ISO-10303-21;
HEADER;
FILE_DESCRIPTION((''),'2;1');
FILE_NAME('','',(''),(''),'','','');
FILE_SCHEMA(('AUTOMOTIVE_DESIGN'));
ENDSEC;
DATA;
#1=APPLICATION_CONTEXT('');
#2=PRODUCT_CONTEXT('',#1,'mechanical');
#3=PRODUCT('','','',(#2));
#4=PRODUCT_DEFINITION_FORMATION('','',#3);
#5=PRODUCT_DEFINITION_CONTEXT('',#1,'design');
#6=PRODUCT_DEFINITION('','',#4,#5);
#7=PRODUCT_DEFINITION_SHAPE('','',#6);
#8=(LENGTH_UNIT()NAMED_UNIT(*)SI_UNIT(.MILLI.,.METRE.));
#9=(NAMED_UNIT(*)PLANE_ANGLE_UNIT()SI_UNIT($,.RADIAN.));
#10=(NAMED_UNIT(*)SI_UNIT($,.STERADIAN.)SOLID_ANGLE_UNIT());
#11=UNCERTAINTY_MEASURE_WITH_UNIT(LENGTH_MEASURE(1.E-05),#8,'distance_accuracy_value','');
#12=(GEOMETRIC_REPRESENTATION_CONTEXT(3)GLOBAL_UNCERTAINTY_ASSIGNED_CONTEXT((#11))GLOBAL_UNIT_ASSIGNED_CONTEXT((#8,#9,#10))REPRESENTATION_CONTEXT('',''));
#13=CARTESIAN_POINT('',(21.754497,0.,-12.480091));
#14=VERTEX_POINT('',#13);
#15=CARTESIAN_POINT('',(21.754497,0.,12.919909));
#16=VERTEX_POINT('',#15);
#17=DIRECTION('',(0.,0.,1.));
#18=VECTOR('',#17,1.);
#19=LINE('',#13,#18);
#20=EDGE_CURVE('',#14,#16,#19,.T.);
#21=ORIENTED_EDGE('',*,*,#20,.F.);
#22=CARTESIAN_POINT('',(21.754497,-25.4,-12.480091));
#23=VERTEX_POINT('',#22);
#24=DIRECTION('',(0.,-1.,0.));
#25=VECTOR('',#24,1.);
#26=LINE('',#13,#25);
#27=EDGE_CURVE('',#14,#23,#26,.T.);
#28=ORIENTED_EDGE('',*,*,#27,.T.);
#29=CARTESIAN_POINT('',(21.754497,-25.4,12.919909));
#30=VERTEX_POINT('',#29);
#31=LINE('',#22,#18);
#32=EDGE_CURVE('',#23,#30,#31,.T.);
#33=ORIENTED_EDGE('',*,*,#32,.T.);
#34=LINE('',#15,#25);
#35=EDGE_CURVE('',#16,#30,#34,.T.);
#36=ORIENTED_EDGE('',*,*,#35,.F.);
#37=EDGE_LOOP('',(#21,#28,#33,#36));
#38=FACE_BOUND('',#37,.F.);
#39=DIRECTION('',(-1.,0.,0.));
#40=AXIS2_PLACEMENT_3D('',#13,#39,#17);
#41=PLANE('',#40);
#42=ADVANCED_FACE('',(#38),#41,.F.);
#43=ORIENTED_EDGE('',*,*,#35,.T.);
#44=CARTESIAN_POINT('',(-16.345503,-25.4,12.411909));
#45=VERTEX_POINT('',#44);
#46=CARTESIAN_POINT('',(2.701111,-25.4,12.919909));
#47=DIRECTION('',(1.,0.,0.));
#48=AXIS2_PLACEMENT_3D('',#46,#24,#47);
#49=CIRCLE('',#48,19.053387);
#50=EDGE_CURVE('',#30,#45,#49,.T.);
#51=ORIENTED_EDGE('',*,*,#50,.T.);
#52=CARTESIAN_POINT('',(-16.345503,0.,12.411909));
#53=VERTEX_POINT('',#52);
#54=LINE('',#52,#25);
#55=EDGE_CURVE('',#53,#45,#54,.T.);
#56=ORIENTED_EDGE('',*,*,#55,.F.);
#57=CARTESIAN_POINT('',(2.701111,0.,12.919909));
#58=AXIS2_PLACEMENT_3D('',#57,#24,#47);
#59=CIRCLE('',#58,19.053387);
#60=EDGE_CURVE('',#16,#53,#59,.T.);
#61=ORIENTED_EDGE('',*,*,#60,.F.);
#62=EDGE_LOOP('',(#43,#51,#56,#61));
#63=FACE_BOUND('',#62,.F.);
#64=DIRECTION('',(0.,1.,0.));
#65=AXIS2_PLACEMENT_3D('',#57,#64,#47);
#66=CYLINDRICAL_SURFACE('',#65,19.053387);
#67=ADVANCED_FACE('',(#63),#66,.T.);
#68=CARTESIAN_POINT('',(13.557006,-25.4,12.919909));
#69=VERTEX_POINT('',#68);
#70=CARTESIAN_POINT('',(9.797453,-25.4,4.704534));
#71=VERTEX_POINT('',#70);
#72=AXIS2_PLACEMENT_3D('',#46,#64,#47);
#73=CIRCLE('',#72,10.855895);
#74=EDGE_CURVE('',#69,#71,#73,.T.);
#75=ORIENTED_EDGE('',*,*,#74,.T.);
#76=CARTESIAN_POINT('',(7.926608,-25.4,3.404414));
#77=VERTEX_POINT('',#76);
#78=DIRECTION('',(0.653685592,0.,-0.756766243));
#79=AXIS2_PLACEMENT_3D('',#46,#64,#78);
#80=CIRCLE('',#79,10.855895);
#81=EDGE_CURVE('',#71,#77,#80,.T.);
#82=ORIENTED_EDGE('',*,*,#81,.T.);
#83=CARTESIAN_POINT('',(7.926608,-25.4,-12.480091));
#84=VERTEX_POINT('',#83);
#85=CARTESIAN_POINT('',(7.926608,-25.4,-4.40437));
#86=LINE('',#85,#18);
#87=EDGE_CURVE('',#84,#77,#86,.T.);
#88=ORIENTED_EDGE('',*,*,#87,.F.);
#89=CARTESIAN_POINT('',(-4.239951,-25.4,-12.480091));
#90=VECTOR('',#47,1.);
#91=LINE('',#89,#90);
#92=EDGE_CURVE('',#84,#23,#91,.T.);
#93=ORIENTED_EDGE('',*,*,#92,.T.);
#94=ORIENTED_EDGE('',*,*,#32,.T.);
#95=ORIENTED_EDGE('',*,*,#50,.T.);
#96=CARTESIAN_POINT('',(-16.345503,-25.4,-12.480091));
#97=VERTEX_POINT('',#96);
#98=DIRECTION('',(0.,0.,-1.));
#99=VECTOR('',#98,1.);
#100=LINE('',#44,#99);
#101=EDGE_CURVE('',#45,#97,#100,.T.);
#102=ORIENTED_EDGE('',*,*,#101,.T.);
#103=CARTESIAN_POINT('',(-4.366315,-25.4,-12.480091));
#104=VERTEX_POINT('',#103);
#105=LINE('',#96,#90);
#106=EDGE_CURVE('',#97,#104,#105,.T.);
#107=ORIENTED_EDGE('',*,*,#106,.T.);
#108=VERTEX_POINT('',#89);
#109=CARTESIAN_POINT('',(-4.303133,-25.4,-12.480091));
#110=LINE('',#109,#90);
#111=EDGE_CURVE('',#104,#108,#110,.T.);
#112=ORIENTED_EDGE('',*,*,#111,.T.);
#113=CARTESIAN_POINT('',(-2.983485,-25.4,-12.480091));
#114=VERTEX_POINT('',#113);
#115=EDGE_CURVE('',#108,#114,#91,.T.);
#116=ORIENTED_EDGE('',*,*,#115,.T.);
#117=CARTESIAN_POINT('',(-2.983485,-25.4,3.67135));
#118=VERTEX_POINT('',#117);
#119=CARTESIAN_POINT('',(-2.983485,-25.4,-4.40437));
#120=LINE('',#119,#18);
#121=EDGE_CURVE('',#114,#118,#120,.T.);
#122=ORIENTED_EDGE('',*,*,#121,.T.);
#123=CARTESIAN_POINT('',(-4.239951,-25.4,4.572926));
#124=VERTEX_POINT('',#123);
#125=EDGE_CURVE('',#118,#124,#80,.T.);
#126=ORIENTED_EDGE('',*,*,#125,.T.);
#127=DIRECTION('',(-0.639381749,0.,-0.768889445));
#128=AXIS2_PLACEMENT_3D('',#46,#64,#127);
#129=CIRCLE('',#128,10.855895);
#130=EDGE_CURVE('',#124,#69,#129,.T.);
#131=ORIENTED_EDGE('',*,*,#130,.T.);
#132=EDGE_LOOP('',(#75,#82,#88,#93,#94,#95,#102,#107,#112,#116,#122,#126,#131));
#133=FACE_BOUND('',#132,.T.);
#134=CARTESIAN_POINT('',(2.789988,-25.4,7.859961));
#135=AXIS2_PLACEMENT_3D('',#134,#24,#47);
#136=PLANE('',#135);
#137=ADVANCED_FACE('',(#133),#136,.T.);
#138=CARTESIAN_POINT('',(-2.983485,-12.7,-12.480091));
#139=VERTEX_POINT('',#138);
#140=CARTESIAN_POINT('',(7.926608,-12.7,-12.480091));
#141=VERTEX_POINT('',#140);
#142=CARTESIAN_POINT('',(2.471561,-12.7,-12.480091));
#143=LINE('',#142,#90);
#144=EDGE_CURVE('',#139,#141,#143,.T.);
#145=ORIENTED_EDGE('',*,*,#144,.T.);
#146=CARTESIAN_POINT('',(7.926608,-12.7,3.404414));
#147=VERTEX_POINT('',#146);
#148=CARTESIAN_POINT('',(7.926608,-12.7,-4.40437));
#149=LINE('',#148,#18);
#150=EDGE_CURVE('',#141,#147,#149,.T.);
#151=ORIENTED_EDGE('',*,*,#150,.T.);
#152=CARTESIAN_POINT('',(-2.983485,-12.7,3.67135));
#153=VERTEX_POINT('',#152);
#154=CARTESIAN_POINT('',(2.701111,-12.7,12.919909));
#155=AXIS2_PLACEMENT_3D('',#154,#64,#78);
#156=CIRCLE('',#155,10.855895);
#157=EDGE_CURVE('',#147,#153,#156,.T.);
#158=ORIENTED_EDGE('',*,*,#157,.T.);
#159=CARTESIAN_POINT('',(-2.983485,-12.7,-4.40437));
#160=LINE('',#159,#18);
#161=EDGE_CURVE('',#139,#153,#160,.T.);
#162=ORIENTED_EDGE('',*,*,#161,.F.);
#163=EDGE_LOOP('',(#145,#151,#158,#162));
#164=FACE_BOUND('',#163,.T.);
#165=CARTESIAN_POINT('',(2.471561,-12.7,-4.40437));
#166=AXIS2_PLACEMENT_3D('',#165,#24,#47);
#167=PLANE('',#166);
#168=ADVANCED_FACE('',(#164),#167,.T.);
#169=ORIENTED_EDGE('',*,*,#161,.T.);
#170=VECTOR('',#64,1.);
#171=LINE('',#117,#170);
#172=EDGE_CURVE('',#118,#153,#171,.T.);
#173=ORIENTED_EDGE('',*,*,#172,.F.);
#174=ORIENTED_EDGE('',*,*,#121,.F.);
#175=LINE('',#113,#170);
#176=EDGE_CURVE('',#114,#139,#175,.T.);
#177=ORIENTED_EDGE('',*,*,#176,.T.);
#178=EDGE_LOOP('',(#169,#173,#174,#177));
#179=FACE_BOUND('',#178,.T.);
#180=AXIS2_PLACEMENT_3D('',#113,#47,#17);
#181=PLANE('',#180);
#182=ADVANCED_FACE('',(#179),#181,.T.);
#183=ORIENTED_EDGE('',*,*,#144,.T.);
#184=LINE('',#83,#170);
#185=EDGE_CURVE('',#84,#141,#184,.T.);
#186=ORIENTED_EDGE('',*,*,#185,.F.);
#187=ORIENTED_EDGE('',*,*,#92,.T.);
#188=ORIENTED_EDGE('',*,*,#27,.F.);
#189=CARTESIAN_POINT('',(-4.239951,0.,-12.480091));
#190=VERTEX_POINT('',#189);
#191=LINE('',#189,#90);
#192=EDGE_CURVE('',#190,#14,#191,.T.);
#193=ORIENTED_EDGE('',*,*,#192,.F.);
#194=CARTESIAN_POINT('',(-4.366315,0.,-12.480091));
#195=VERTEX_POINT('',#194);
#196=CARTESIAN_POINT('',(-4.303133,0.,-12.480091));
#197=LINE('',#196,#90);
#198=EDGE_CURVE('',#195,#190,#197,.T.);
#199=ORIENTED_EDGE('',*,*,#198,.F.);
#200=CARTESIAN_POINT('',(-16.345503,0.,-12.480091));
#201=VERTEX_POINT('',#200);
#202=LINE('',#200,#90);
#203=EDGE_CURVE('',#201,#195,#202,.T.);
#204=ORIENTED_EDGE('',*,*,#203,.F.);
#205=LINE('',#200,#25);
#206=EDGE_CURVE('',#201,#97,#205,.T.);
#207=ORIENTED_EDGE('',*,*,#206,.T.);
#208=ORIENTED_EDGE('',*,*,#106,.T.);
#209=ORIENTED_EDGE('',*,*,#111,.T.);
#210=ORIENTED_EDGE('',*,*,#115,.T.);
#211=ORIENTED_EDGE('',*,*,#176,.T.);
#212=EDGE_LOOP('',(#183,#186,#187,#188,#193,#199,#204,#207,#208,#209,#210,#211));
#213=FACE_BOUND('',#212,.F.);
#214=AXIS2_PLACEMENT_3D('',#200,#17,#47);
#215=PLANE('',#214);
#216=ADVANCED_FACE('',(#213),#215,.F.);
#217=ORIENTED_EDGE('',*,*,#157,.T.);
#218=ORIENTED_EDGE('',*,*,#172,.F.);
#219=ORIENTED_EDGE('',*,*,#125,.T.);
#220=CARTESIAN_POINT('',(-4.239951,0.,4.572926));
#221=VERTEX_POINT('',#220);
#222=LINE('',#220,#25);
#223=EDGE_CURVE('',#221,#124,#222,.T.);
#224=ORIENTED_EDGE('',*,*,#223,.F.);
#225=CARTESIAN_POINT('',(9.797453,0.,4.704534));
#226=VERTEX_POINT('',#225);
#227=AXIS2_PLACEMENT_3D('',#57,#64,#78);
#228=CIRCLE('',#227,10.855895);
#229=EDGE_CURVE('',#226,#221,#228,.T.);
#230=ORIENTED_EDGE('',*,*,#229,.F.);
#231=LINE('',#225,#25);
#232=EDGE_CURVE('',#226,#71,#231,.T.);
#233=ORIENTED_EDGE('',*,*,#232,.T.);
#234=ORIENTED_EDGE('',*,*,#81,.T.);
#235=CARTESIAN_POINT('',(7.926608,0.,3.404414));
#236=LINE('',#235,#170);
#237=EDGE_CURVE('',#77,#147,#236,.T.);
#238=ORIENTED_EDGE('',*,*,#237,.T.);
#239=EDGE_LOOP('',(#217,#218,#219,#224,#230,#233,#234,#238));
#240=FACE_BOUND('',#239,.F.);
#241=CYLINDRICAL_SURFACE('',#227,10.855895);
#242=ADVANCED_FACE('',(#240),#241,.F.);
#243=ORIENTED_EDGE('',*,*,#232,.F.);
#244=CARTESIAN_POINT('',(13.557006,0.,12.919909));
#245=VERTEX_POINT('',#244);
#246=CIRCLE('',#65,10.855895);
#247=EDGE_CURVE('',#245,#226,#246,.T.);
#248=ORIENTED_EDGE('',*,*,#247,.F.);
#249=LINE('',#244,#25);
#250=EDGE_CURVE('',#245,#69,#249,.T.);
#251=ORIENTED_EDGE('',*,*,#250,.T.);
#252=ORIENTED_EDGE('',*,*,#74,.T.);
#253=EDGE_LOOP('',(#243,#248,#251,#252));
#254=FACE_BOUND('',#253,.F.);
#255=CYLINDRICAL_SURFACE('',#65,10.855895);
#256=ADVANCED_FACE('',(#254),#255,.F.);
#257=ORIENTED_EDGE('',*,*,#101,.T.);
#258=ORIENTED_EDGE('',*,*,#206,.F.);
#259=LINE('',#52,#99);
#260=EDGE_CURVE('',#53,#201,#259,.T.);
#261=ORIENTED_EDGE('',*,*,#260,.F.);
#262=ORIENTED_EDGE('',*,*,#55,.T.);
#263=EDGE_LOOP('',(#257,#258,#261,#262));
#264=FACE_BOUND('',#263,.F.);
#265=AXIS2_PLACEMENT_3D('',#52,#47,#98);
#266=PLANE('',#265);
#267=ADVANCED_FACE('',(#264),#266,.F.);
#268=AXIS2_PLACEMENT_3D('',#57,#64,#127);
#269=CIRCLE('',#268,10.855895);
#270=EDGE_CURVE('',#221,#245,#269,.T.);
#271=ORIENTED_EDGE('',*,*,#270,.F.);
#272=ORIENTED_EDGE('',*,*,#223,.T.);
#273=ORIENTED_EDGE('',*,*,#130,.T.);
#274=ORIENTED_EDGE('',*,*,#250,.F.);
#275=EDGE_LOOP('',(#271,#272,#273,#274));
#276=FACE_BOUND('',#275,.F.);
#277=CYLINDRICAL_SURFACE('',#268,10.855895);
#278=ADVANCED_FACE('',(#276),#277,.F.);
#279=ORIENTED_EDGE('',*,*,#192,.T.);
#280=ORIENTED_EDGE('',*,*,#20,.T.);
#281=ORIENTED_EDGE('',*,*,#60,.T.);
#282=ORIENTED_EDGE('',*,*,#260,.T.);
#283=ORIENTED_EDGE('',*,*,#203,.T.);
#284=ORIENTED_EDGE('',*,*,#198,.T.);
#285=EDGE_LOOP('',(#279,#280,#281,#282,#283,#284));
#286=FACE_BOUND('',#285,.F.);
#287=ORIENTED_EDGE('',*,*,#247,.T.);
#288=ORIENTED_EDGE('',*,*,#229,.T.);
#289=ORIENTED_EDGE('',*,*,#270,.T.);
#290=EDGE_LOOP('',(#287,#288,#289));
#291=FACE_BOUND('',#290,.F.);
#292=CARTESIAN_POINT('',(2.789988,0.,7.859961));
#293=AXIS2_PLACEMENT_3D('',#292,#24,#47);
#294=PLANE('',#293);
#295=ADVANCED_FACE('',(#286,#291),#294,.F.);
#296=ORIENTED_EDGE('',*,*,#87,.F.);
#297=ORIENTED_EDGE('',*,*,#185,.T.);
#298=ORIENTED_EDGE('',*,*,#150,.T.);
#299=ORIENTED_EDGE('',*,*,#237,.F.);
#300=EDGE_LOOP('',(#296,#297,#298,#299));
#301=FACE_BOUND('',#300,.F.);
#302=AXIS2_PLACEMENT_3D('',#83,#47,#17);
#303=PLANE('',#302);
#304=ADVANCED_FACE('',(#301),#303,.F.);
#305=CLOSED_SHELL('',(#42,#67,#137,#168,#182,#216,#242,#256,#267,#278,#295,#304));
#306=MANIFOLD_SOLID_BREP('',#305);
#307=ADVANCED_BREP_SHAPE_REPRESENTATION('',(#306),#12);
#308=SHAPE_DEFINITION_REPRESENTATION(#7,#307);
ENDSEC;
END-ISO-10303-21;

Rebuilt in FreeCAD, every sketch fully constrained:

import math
import FreeCAD as App
import Part
import Sketcher

V = App.Vector
Q = App.Units.Quantity

doc = App.newDocument("Part")
body = doc.addObject("PartDesign::Body", "Body")

# Sketch on XZ plane
sketch1 = body.newObject("Sketcher::SketchObject", "Sketch")
sketch1.AttachmentSupport = (doc.getObject("XZ_Plane"), [""])
sketch1.MapMode = "FlatFace"
sketch1.addGeometry(Part.ArcOfCircle(Part.Circle(V(2.701111, 12.919909, 0), V(0, 0, 1), 19.053387), math.radians(0), math.radians(181.527797)), False)
sketch1.addGeometry(Part.LineSegment(V(-16.345503, 12.411909, 0), V(-16.345503, -12.480091, 0)), False)
sketch1.addGeometry(Part.LineSegment(V(-16.345503, -12.480091, 0), V(-4.366315, -12.480091, 0)), False)
sketch1.addGeometry(Part.LineSegment(V(-4.366315, -12.480091, 0), V(-4.239951, -12.480091, 0)), False)
sketch1.addGeometry(Part.LineSegment(V(-4.239951, -12.480091, 0), V(21.754497, -12.480091, 0)), False)
sketch1.addGeometry(Part.LineSegment(V(21.754497, -12.480091, 0), V(21.754497, 12.919909, 0)), False)
sketch1.addGeometry(Part.ArcOfCircle(Part.Circle(V(2.701111, 12.919909, 0), V(0, 0, 1), 10.855895), math.radians(0), math.radians(230.254266)), False)
sketch1.addGeometry(Part.ArcOfCircle(Part.Circle(V(2.701111, 12.919909, 0), V(0, 0, 1), 10.855895), math.radians(-49.17994), math.radians(0)), False)
sketch1.addGeometry(Part.ArcOfCircle(Part.Circle(V(2.701111, 12.919909, 0), V(0, 0, 1), 10.855895), math.radians(-129.745734), math.radians(-49.17994)), False)
sketch1.addConstraint(Sketcher.Constraint("Coincident", 0, 2, 1, 1))
sketch1.addConstraint(Sketcher.Constraint("Coincident", 1, 2, 2, 1))
sketch1.addConstraint(Sketcher.Constraint("Coincident", 2, 2, 3, 1))
sketch1.addConstraint(Sketcher.Constraint("Coincident", 3, 2, 4, 1))
sketch1.addConstraint(Sketcher.Constraint("Coincident", 4, 2, 5, 1))
sketch1.addConstraint(Sketcher.Constraint("Tangent", 5, 2, 0, 1))
sketch1.addConstraint(Sketcher.Constraint("Tangent", 6, 1, 7, 2))
sketch1.addConstraint(Sketcher.Constraint("Tangent", 7, 1, 8, 2))
sketch1.addConstraint(Sketcher.Constraint("Tangent", 8, 1, 6, 2))
sketch1.addConstraint(Sketcher.Constraint("Vertical", 1))
sketch1.addConstraint(Sketcher.Constraint("Horizontal", 2))
sketch1.addConstraint(Sketcher.Constraint("Horizontal", 3))
sketch1.addConstraint(Sketcher.Constraint("Horizontal", 4))
sketch1.addConstraint(Sketcher.Constraint("Vertical", 5))
sketch1.addConstraint(Sketcher.Constraint("Coincident", 6, 3, 0, 3))
sketch1.addConstraint(Sketcher.Constraint("Horizontal", 5, 2, 6, 1))
sketch1.addConstraint(Sketcher.Constraint("Vertical", 3, 2, 8, 1))
sketch1.addConstraint(Sketcher.Constraint("DistanceY", 5, 1, 5, 2, Q("1 in")))
sketch1.addConstraint(Sketcher.Constraint("DistanceY", 1, 2, 1, 1, Q("0.98 in")))
sketch1.addConstraint(Sketcher.Constraint("Radius", 0, Q("19.053387 mm")))
sketch1.addConstraint(Sketcher.Constraint("Radius", 6, Q("10.855895 mm")))
sketch1.addConstraint(Sketcher.Constraint("DistanceX", 4, 1, 4, 2, Q("25.994448 mm")))
sketch1.addConstraint(Sketcher.Constraint("DistanceX", 2, 1, 2, 2, Q("11.979187 mm")))
sketch1.addConstraint(Sketcher.Constraint("DistanceX", -1, 1, 0, 3, Q("2.701111 mm")))
sketch1.addConstraint(Sketcher.Constraint("DistanceY", -1, 1, 0, 3, Q("12.919909 mm")))
sketch1.addConstraint(Sketcher.Constraint("DistanceY", 8, 1, 7, 1, Q("0.131608 mm")))
pad1 = body.newObject("PartDesign::Pad", "Pad")
pad1.Profile = sketch1
pad1.Length = Q("1 in")

# Sketch on XZ plane
sketch2 = body.newObject("Sketcher::SketchObject", "Sketch001")
sketch2.AttachmentSupport = (doc.getObject("XZ_Plane"), [""])
sketch2.MapMode = "FlatFace"
sketch2.AttachmentOffset = App.Placement(V(0, 0, 1 * 25.4), App.Rotation())
sketch2.addGeometry(Part.LineSegment(V(-2.983485, 3.67135, 0), V(-2.983485, -12.480091, 0)), False)
sketch2.addGeometry(Part.LineSegment(V(-2.983485, -12.480091, 0), V(7.926608, -12.480091, 0)), False)
sketch2.addGeometry(Part.LineSegment(V(7.926608, -12.480091, 0), V(7.926608, 3.67135, 0)), False)
sketch2.addGeometry(Part.LineSegment(V(7.926608, 3.67135, 0), V(-2.983485, 3.67135, 0)), False)
sketch2.addConstraint(Sketcher.Constraint("Coincident", 0, 2, 1, 1))
sketch2.addConstraint(Sketcher.Constraint("Coincident", 1, 2, 2, 1))
sketch2.addConstraint(Sketcher.Constraint("Coincident", 2, 2, 3, 1))
sketch2.addConstraint(Sketcher.Constraint("Coincident", 3, 2, 0, 1))
sketch2.addConstraint(Sketcher.Constraint("Vertical", 0))
sketch2.addConstraint(Sketcher.Constraint("Horizontal", 1))
sketch2.addConstraint(Sketcher.Constraint("Vertical", 2))
sketch2.addConstraint(Sketcher.Constraint("Horizontal", 3))
sketch2.addConstraint(Sketcher.Constraint("DistanceY", 0, 2, 0, 1, Q("16.151442 mm")))
sketch2.addConstraint(Sketcher.Constraint("DistanceX", 1, 1, 1, 2, Q("10.910093 mm")))
sketch2.addConstraint(Sketcher.Constraint("DistanceY", 0, 2, -1, 1, Q("12.480091 mm")))
sketch2.addConstraint(Sketcher.Constraint("DistanceX", 0, 2, -1, 1, Q("2.983485 mm")))
pocket1 = body.newObject("PartDesign::Pocket", "Pocket")
pocket1.Profile = sketch2
pocket1.Length = Q("0.5 in")

doc.recompute()
